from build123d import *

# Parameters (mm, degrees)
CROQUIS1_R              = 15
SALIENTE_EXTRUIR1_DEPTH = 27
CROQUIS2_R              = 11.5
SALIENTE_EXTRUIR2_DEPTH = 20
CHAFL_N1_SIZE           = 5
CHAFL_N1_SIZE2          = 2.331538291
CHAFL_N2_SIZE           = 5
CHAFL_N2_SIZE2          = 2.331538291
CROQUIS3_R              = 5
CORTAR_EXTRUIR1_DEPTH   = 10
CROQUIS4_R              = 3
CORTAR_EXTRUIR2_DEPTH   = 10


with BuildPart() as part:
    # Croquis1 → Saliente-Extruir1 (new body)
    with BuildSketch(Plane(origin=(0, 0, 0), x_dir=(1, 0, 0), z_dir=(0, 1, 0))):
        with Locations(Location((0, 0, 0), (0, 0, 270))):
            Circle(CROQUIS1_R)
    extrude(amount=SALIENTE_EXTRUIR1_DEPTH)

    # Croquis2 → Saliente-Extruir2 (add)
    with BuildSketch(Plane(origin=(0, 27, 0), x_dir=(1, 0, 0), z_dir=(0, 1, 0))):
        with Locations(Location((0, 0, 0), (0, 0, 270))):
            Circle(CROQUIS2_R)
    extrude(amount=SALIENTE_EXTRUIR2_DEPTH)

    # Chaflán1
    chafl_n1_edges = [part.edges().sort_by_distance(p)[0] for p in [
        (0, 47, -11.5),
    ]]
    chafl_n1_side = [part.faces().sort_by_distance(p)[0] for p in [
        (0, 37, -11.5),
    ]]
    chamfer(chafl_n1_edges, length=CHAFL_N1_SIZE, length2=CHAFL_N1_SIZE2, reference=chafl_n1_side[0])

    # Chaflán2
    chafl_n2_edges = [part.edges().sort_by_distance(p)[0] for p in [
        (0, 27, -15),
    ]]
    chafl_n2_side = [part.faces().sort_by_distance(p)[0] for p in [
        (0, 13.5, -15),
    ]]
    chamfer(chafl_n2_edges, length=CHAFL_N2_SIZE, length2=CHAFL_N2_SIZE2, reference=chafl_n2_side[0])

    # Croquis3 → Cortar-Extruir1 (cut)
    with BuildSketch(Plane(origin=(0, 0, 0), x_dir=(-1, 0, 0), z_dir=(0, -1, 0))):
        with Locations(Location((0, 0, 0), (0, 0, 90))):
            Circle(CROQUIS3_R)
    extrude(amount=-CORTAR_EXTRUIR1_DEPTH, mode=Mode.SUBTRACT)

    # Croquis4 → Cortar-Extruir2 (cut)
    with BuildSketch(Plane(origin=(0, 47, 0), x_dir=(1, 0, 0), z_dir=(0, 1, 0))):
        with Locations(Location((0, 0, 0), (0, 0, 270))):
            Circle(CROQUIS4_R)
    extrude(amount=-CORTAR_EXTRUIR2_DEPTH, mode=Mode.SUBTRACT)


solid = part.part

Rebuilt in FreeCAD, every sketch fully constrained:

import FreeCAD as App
import Part
import Sketcher
Q = App.Units.Quantity


def edges_at(feature, points):
    """Names of the edges that pass closest to the given points."""
    edges = feature.Shape.Edges
    near = lambda p: min(range(len(edges)), key=lambda i: edges[i].distToShape(Part.Vertex(*p))[0])
    return sorted({f"Edge{near(p) + 1}" for p in points})

doc = App.newDocument("Part")
body = doc.addObject("PartDesign::Body", "Body")

# Sketch on XZ plane
sketch1 = body.newObject("Sketcher::SketchObject", "Sketch")
sketch1.AttachmentSupport = (doc.getObject("XZ_Plane"), [""])
sketch1.MapMode = "FlatFace"
sketch1.addGeometry(Part.Circle(App.Vector(0, 0, 0), App.Vector(0, 0, 1), 15), False)
sketch1.addConstraint([
    Sketcher.Constraint("Coincident", 0, 3, -1, 1),
    Sketcher.Constraint("Diameter", 0, Q("30 mm")),
])
pad1 = body.newObject("PartDesign::Pad", "Pad")
pad1.Profile = sketch1
pad1.Length = 27
pad1.Reversed = True

# Sketch on XZ plane
sketch2 = body.newObject("Sketcher::SketchObject", "Sketch001")
sketch2.AttachmentSupport = (doc.getObject("XZ_Plane"), [""])
sketch2.MapMode = "FlatFace"
sketch2.AttachmentOffset = App.Placement(App.Vector(0, 0, -27), App.Rotation())
sketch2.addGeometry(Part.Circle(App.Vector(0, 0, 0), App.Vector(0, 0, 1), 12), False)
sketch2.addConstraint([
    Sketcher.Constraint("Coincident", 0, 3, -1, 1),
    Sketcher.Constraint("Diameter", 0, Q("23 mm")),
])
pad2 = body.newObject("PartDesign::Pad", "Pad001")
pad2.Profile = sketch2
pad2.Length = 20
pad2.Reversed = True
doc.recompute()

chamfer = body.newObject("PartDesign::Chamfer", "Chamfer")
chamfer.Base = (pad2, edges_at(pad2, [(0, 47, -11.5)]))
chamfer.ChamferType = "Two distances"
chamfer.Size = 5
chamfer.Size2 = 2.331538
doc.recompute()

chamfer2 = body.newObject("PartDesign::Chamfer", "Chamfer001")
chamfer2.Base = (chamfer, edges_at(chamfer, [(0, 27, -15)]))
chamfer2.ChamferType = "Two distances"
chamfer2.Size = 5
chamfer2.Size2 = 2.331538
chamfer2.FlipDirection = True

# Sketch on XZ plane
sketch3 = body.newObject("Sketcher::SketchObject", "Sketch002")
sketch3.AttachmentSupport = (doc.getObject("XZ_Plane"), [""])
sketch3.MapMode = "FlatFace"
sketch3.addGeometry(Part.Circle(App.Vector(0, 0, 0), App.Vector(0, 0, 1), 5), False)
sketch3.addConstraint([
    Sketcher.Constraint("Coincident", 0, 3, -1, 1),
    Sketcher.Constraint("Diameter", 0, Q("10 mm")),
])
pocket1 = body.newObject("PartDesign::Pocket", "Pocket")
pocket1.Profile = sketch3
pocket1.Length = 10

# Sketch on XZ plane
sketch4 = body.newObject("Sketcher::SketchObject", "Sketch003")
sketch4.AttachmentSupport = (doc.getObject("XZ_Plane"), [""])
sketch4.MapMode = "FlatFace"
sketch4.AttachmentOffset = App.Placement(App.Vector(0, 0, -47), App.Rotation())
sketch4.addGeometry(Part.Circle(App.Vector(0, 0, 0), App.Vector(0, 0, 1), 3), False)
sketch4.addConstraint([
    Sketcher.Constraint("Coincident", 0, 3, -1, 1),
    Sketcher.Constraint("Diameter", 0, Q("6 mm")),
])
pocket2 = body.newObject("PartDesign::Pocket", "Pocket001")
pocket2.Profile = sketch4
pocket2.Length = 10
pocket2.Reversed = True

doc.recompute()
